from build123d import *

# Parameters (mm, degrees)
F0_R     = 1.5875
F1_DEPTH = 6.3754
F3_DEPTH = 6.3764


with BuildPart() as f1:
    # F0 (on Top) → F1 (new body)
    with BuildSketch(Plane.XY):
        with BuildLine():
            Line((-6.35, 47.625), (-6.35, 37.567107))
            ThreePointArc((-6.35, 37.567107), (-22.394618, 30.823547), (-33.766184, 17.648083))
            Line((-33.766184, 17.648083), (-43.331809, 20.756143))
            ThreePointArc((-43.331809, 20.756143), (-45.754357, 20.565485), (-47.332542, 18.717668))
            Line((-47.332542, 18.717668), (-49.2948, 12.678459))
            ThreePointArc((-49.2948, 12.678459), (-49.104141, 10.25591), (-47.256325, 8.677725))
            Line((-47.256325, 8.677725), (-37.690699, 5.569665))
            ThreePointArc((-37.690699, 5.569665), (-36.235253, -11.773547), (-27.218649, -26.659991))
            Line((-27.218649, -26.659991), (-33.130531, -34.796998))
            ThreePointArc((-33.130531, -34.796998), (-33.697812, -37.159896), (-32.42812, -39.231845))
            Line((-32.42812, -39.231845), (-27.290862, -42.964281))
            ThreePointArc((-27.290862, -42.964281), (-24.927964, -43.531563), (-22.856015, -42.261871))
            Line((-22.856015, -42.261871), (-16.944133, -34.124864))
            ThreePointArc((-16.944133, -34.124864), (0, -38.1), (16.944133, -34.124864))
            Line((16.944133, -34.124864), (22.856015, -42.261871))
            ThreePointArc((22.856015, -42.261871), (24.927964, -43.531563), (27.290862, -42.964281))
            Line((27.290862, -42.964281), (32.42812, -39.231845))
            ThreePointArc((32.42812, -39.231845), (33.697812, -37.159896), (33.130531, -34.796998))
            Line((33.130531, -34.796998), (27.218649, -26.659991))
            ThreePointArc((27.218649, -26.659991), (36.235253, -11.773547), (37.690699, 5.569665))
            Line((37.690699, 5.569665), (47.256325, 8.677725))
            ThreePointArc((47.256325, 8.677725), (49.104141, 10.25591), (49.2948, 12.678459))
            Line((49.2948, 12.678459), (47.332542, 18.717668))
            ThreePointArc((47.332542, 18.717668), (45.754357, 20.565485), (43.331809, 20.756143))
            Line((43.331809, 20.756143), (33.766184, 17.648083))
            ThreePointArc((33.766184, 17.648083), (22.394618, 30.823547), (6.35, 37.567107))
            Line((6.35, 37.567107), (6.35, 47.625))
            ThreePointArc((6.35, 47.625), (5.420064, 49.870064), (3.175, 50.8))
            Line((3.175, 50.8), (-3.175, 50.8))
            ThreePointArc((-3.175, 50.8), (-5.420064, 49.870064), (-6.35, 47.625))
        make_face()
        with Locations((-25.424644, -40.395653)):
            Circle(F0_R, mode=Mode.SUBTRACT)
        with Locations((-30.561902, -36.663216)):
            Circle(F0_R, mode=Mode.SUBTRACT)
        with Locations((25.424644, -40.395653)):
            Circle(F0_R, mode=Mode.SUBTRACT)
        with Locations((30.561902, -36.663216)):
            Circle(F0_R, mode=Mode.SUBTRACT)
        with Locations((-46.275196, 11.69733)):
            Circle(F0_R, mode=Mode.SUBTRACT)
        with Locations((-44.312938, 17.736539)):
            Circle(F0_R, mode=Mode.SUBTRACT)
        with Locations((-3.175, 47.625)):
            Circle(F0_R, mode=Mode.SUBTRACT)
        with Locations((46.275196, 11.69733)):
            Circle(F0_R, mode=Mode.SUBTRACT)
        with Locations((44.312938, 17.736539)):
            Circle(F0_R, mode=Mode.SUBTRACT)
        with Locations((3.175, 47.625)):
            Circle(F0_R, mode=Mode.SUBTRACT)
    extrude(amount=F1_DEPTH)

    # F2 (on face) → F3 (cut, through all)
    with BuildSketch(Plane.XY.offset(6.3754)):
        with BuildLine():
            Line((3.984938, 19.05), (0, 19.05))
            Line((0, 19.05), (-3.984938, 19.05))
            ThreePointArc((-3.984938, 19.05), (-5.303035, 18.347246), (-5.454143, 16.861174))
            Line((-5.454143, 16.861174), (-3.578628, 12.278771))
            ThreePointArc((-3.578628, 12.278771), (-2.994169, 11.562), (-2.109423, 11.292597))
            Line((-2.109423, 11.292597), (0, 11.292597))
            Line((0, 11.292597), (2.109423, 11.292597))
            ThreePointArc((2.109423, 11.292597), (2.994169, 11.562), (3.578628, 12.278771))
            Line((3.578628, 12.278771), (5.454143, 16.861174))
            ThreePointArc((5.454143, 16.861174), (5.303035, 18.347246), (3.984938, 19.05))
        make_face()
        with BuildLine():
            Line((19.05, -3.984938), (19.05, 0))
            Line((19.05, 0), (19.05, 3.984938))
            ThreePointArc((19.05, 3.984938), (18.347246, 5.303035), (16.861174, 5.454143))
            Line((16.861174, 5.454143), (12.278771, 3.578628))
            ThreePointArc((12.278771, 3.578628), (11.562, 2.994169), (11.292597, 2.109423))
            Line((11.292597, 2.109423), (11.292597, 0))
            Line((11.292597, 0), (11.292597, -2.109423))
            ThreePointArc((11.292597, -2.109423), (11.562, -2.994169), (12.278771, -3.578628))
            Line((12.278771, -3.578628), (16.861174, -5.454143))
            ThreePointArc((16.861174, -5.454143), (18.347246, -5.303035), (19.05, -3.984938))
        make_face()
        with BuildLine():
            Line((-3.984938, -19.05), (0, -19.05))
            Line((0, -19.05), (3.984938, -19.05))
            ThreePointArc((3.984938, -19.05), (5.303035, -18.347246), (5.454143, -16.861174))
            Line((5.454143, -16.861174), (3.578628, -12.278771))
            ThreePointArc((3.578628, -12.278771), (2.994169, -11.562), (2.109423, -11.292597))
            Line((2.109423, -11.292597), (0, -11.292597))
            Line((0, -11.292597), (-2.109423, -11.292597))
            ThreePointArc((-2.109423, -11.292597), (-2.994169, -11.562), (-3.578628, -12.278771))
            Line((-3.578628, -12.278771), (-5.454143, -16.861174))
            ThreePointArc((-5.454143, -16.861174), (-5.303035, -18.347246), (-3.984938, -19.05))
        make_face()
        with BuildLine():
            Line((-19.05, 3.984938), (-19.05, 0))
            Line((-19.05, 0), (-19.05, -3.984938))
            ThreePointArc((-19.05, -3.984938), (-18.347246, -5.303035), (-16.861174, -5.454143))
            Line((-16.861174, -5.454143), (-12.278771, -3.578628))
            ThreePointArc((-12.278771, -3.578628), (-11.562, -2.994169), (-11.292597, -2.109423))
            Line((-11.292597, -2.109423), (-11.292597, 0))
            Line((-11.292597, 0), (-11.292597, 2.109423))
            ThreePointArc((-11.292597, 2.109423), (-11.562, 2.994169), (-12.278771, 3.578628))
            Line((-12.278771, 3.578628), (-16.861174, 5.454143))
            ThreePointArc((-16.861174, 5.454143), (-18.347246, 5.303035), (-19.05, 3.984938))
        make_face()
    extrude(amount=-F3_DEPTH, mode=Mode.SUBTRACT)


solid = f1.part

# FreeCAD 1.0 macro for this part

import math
import FreeCAD as App
import Part
import Sketcher
from FreeCAD import Vector
Q = App.Units.Quantity

doc = App.newDocument("Part")
params = doc.addObject("Spreadsheet::Sheet", "Params")
for row, (alias, value) in enumerate([
    ("sketch1_radius", "1.5 in"),
    ("sketch1_radius2", "1.4999999 in"),
    ("sketch1_radius3", "1.5 in"),
    ("sketch1_diameter", "0.125 in"),
    ("sketch1_diameter2", "0.125 in"),
    ("pad1_length", "0.251 in"),
    ("sketch2_radius", "0.0625 in"),
], start=1):
    params.set(f"A{row}", alias)
    params.set(f"B{row}", "=" + value)
    params.setAlias(f"B{row}", alias)

body = doc.addObject("PartDesign::Body", "Body")

# Sketch on XY plane
sketch1 = doc.addObject("Sketcher::SketchObject", "Sketch")
body.addObject(sketch1)
sketch1.AttachmentSupport = (doc.XY_Plane, [""])
sketch1.MapMode = "FlatFace"
sketch1.addGeometry([
    Part.LineSegment(Vector(-6.35, 47.625, 0), Vector(-6.35, 37.567107, 0)),  # 0
    Part.ArcOfCircle(Part.Circle(Vector(0.000004, -0.000006, 0), Vector(0, 0, 1), 38.100007), math.radians(99.594073), math.radians(152.405928)),  # 1
    Part.LineSegment(Vector(-33.766184, 17.648083, 0), Vector(-43.331809, 20.756143, 0)),  # 2
    Part.ArcOfCircle(Part.Circle(Vector(-44.312938, 17.73654, 0), Vector(0, 0, 1), 3.174999), math.radians(71.999985), math.radians(162.000009)),  # 3
    Part.LineSegment(Vector(-47.332542, 18.717668, 0), Vector(-49.2948, 12.678459, 0)),  # 4
    Part.ArcOfCircle(Part.Circle(Vector(-46.275194, 11.69733, 0), Vector(0, 0, 1), 3.175002), math.radians(162.000016), math.radians(251.999966)),  # 5
    Part.LineSegment(Vector(-47.256325, 8.677725, 0), Vector(-37.690699, 5.569665, 0)),  # 6
    Part.ArcOfCircle(Part.Circle(Vector(0, 0, 0), Vector(0, 0, 1), 38.099999), math.radians(171.594068), math.radians(224.405932)),  # 7
    Part.LineSegment(Vector(-27.218649, -26.659991, 0), Vector(-33.130531, -34.796998, 0)),  # 8
    Part.ArcOfCircle(Part.Circle(Vector(-30.561901, -36.663216, 0), Vector(0, 0, 1), 3.175001), math.radians(144.000017), math.radians(233.999989)),  # 9
    Part.LineSegment(Vector(-32.42812, -39.231845, 0), Vector(-27.290862, -42.964281, 0)),  # 10
    Part.ArcOfCircle(Part.Circle(Vector(-25.424643, -40.395653, 0), Vector(0, 0, 1), 3.174999), math.radians(-126.000019), math.radians(-36)),  # 11
    Part.LineSegment(Vector(-22.856015, -42.261871, 0), Vector(-16.944133, -34.124864, 0)),  # 12
    Part.ArcOfCircle(Part.Circle(Vector(0, -0.000002, 0), Vector(0, 0, 1), 38.099998), math.radians(-116.405933), math.radians(-63.594067)),  # 13
    Part.LineSegment(Vector(16.944133, -34.124864, 0), Vector(22.856015, -42.261871, 0)),  # 14
    Part.ArcOfCircle(Part.Circle(Vector(25.424643, -40.395653, 0), Vector(0, 0, 1), 3.174999), math.radians(-144), math.radians(-53.999981)),  # 15
    Part.LineSegment(Vector(27.290862, -42.964281, 0), Vector(32.42812, -39.231845, 0)),  # 16
    Part.ArcOfCircle(Part.Circle(Vector(30.561901, -36.663216, 0), Vector(0, 0, 1), 3.175001), math.radians(-53.999989), math.radians(35.999983)),  # 17
    Part.LineSegment(Vector(33.130531, -34.796998, 0), Vector(27.218649, -26.659991, 0)),  # 18
    Part.ArcOfCircle(Part.Circle(Vector(0, 0, 0), Vector(0, 0, 1), 38.099999), math.radians(-44.405932), math.radians(8.405932)),  # 19
    Part.LineSegment(Vector(37.690699, 5.569665, 0), Vector(47.256325, 8.677725, 0)),  # 20
    Part.ArcOfCircle(Part.Circle(Vector(46.275194, 11.69733, 0), Vector(0, 0, 1), 3.175002), math.radians(-71.999966), math.radians(17.999984)),  # 21
    Part.LineSegment(Vector(49.2948, 12.678459, 0), Vector(47.332542, 18.717668, 0)),  # 22
    Part.ArcOfCircle(Part.Circle(Vector(44.312938, 17.73654, 0), Vector(0, 0, 1), 3.174999), math.radians(17.999991), math.radians(108.000015)),  # 23
    Part.LineSegment(Vector(43.331809, 20.756143, 0), Vector(33.766184, 17.648083, 0)),  # 24
    Part.ArcOfCircle(Part.Circle(Vector(-0.000004, -0.000006, 0), Vector(0, 0, 1), 38.100007), math.radians(27.594072), math.radians(80.405927)),  # 25
    Part.LineSegment(Vector(6.35, 37.567107, 0), Vector(6.35, 47.625, 0)),  # 26
    Part.ArcOfCircle(Part.Circle(Vector(3.175, 47.625, 0), Vector(0, 0, 1), 3.175), math.radians(0.000002), math.radians(89.999998)),  # 27
    Part.LineSegment(Vector(3.175, 50.8, 0), Vector(-3.175, 50.8, 0)),  # 28
    Part.ArcOfCircle(Part.Circle(Vector(-3.175, 47.625, 0), Vector(0, 0, 1), 3.175), math.radians(90.000002), math.radians(179.999998)),  # 29
    Part.Circle(Vector(-30.561902, -36.663216, 0), Vector(0, 0, 1), 1.5875),  # 30
    Part.Circle(Vector(-25.424644, -40.395653, 0), Vector(0, 0, 1), 1.5875),  # 31
    Part.Circle(Vector(25.424644, -40.395653, 0), Vector(0, 0, 1), 1.5875),  # 32
    Part.Circle(Vector(30.561902, -36.663216, 0), Vector(0, 0, 1), 1.5875),  # 33
    Part.Circle(Vector(-46.275196, 11.69733, 0), Vector(0, 0, 1), 1.5875),  # 34
    Part.Circle(Vector(-44.312938, 17.736539, 0), Vector(0, 0, 1), 1.5875),  # 35
    Part.Circle(Vector(-3.175, 47.625, 0), Vector(0, 0, 1), 1.5875),  # 36
    Part.Circle(Vector(46.275196, 11.69733, 0), Vector(0, 0, 1), 1.5875),  # 37
    Part.Circle(Vector(44.312938, 17.736539, 0), Vector(0, 0, 1), 1.5875),  # 38
    Part.Circle(Vector(3.175, 47.625, 0), Vector(0, 0, 1), 1.5875),  # 39
], False)
sketch1.addConstraint([
    Sketcher.Constraint("Coincident", 0, 2, 1, 1),
    Sketcher.Constraint("Coincident", 1, 2, 2, 1),
    Sketcher.Constraint("Coincident", 2, 2, 3, 1),
    Sketcher.Constraint("Coincident", 3, 2, 4, 1),
    Sketcher.Constraint("Coincident", 4, 2, 5, 1),
    Sketcher.Constraint("Coincident", 5, 2, 6, 1),
    Sketcher.Constraint("Coincident", 6, 2, 7, 1),
    Sketcher.Constraint("Coincident", 7, 2, 8, 1),
    Sketcher.Constraint("Coincident", 8, 2, 9, 1),
    Sketcher.Constraint("Coincident", 9, 2, 10, 1),
    Sketcher.Constraint("Coincident", 10, 2, 11, 1),
    Sketcher.Constraint("Coincident", 11, 2, 12, 1),
    Sketcher.Constraint("Coincident", 12, 2, 13, 1),
    Sketcher.Constraint("Coincident", 13, 2, 14, 1),
    Sketcher.Constraint("Coincident", 14, 2, 15, 1),
    Sketcher.Constraint("Coincident", 15, 2, 16, 1),
    Sketcher.Constraint("Coincident", 16, 2, 17, 1),
    Sketcher.Constraint("Coincident", 17, 2, 18, 1),
    Sketcher.Constraint("Coincident", 18, 2, 19, 1),
    Sketcher.Constraint("Coincident", 19, 2, 20, 1),
    Sketcher.Constraint("Coincident", 20, 2, 21, 1),
    Sketcher.Constraint("Coincident", 21, 2, 22, 1),
    Sketcher.Constraint("Coincident", 22, 2, 23, 1),
    Sketcher.Constraint("Coincident", 23, 2, 24, 1),
    Sketcher.Constraint("Coincident", 24, 2, 25, 1),
    Sketcher.Constraint("Coincident", 25, 2, 26, 1),
    Sketcher.Constraint("Coincident", 26, 2, 27, 1),
    Sketcher.Constraint("Coincident", 27, 2, 28, 1),
    Sketcher.Constraint("Coincident", 28, 2, 29, 1),
    Sketcher.Constraint("Coincident", 29, 2, 0, 1),
    Sketcher.Constraint("Vertical", 0),
    Sketcher.Constraint("Vertical", 26),
    Sketcher.Constraint("Horizontal", 28),
    Sketcher.Constraint("Coincident", 1, 3, -1, 1),
    Sketcher.Constraint("Coincident", 7, 3, -1, 1),
    Sketcher.Constraint("Coincident", 13, 3, -1, 1),
    Sketcher.Constraint("Coincident", 19, 3, -1, 1),
    Sketcher.Constraint("Coincident", 25, 3, -1, 1),
    Sketcher.Constraint("Coincident", 30, 3, 9, 3),
    Sketcher.Constraint("Coincident", 31, 3, 11, 3),
    Sketcher.Constraint("Coincident", 32, 3, 15, 3),
    Sketcher.Constraint("Coincident", 33, 3, 17, 3),
    Sketcher.Constraint("Coincident", 34, 3, 5, 3),
    Sketcher.Constraint("Coincident", 35, 3, 3, 3),
    Sketcher.Constraint("Coincident", 36, 3, 29, 3),
    Sketcher.Constraint("Coincident", 37, 3, 21, 3),
    Sketcher.Constraint("Coincident", 38, 3, 23, 3),
    Sketcher.Constraint("Coincident", 39, 3, 27, 3),
    Sketcher.Constraint("Radius", 7, Q("1.5 in")),
    Sketcher.Constraint("Radius", 13, Q("1.4999999 in")),
    Sketcher.Constraint("Radius", 19, Q("1.5 in")),
    Sketcher.Constraint("Diameter", 30, Q("0.125 in")),
    Sketcher.Constraint("Diameter", 31, Q("0.125 in")),
    Sketcher.Constraint("Diameter", 32, Q("0.125 in")),
    Sketcher.Constraint("Diameter", 33, Q("0.125 in")),
    Sketcher.Constraint("Diameter", 34, Q("0.125 in")),
    Sketcher.Constraint("Diameter", 35, Q("0.125 in")),
    Sketcher.Constraint("Diameter", 36, Q("0.125 in")),
    Sketcher.Constraint("Diameter", 37, Q("0.125 in")),
    Sketcher.Constraint("Diameter", 38, Q("0.125 in")),
    Sketcher.Constraint("Diameter", 39, Q("0.125 in")),
    Sketcher.Constraint("DistanceY", -1, 1, 27, 2, Q("2 in")),
    Sketcher.Constraint("Radius", 3, Q("0.125 in")),
    Sketcher.Constraint("Radius", 5, Q("0.1250001 in")),
    Sketcher.Constraint("Radius", 9, Q("0.125 in")),
    Sketcher.Constraint("Radius", 11, Q("0.125 in")),
    Sketcher.Constraint("Radius", 15, Q("0.125 in")),
    Sketcher.Constraint("Radius", 17, Q("0.125 in")),
    Sketcher.Constraint("Radius", 21, Q("0.1250001 in")),
    Sketcher.Constraint("Radius", 23, Q("0.125 in")),
    Sketcher.Constraint("Radius", 27, Q("0.125 in")),
    Sketcher.Constraint("Radius", 29, Q("0.125 in")),
    Sketcher.Constraint("DistanceX", 28, 2, 28, 1, Q("0.25 in")),
    Sketcher.Constraint("DistanceX", 0, 2, 25, 2, Q("0.5 in")),
    Sketcher.Constraint("Distance", 4, Q("0.25 in")),
    Sketcher.Constraint("Distance", 10, Q("0.25 in")),
    Sketcher.Constraint("Distance", 16, Q("0.25 in")),
    Sketcher.Constraint("Distance", 22, Q("0.25 in")),
    Sketcher.Constraint("DistanceX", 0, 2, -1, 1, Q("0.25 in")),
    Sketcher.Constraint("DistanceX", 29, 3, 27, 2, Q("0.25 in")),
    Sketcher.Constraint("DistanceY", -1, 1, 26, 2, Q("1.875 in")),
    Sketcher.Constraint("DistanceY", -1, 1, 29, 2, Q("1.875 in")),
    Sketcher.Constraint("Radius", 1, Q("38.100007 mm")),
    Sketcher.Constraint("Radius", 25, Q("38.100007 mm")),
    Sketcher.Constraint("DistanceX", 9, 3, -1, 1, Q("30.561901 mm")),
    Sketcher.Constraint("DistanceX", -1, 1, 17, 3, Q("30.561901 mm")),
    Sketcher.Constraint("DistanceX", 4, 2, -1, 1, Q("49.2948 mm")),
    Sketcher.Constraint("DistanceX", 6, 2, -1, 1, Q("37.690699 mm")),
    Sketcher.Constraint("DistanceY", 8, 2, -1, 1, Q("34.796998 mm")),
    Sketcher.Constraint("DistanceY", 17, 2, -1, 1, Q("34.796998 mm")),
    Sketcher.Constraint("DistanceX", -1, 1, 19, 2, Q("37.690699 mm")),
    Sketcher.Constraint("DistanceX", -1, 1, 21, 2, Q("49.2948 mm")),
    Sketcher.Constraint("DistanceX", 5, 3, 1, 3, Q("46.275198 mm")),
    Sketcher.Constraint("DistanceX", 3, 3, -1, 1, Q("44.312938 mm")),
    Sketcher.Constraint("DistanceY", -1, 1, 3, 3, Q("17.73654 mm")),
    Sketcher.Constraint("DistanceY", -1, 1, 5, 3, Q("11.69733 mm")),
    Sketcher.Constraint("DistanceY", -1, 1, 21, 3, Q("11.69733 mm")),
    Sketcher.Constraint("DistanceX", -1, 1, 23, 3, Q("44.312938 mm")),
    Sketcher.Constraint("DistanceY", -1, 1, 23, 3, Q("17.73654 mm")),
    Sketcher.Constraint("DistanceX", 2, 2, -1, 1, Q("43.331809 mm")),
    Sketcher.Constraint("DistanceX", 7, 2, -1, 1, Q("27.218649 mm")),
    Sketcher.Constraint("DistanceX", 8, 2, -1, 1, Q("33.130531 mm")),
    Sketcher.Constraint("DistanceX", 9, 2, -1, 1, Q("32.42812 mm")),
    Sketcher.Constraint("DistanceY", 10, 2, -1, 1, Q("42.964281 mm")),
    Sketcher.Constraint("DistanceY", 11, 2, -1, 1, Q("42.261871 mm")),
    Sketcher.Constraint("DistanceY", 14, 2, -1, 1, Q("42.261871 mm")),
    Sketcher.Constraint("DistanceX", -1, 1, 15, 2, Q("27.290862 mm")),
    Sketcher.Constraint("DistanceY", 15, 2, -1, 1, Q("42.964281 mm")),
    Sketcher.Constraint("DistanceX", -1, 1, 16, 2, Q("32.42812 mm")),
    Sketcher.Constraint("DistanceX", -1, 1, 18, 2, Q("27.218649 mm")),
    Sketcher.Constraint("DistanceY", -1, 1, 21, 2, Q("12.678459 mm")),
    Sketcher.Constraint("DistanceX", -1, 1, 23, 2, Q("43.331809 mm")),
    Sketcher.Constraint("DistanceX", 5, 3, 11, 3, Q("20.85055 mm")),
    Sketcher.Constraint("DistanceX", 1, 3, 15, 3, Q("25.424639 mm")),
    Sketcher.Constraint("DistanceX", 5, 3, 1, 2, Q("12.50901 mm")),
    Sketcher.Constraint("DistanceX", 5, 2, 34, 3, Q("0.981129 mm")),
    Sketcher.Constraint("DistanceX", 11, 3, 12, 2, Q("8.48051 mm")),
    Sketcher.Constraint("DistanceX", 13, 2, 15, 3, Q("8.48051 mm")),
    Sketcher.Constraint("DistanceX", 37, 3, 20, 2, Q("0.981129 mm")),
    Sketcher.Constraint("DistanceY", 24, 2, 23, 2, Q("3.10806 mm")),
])
sketch1.setExpression("Constraints[48]", "Params.sketch1_radius")
sketch1.setExpression("Constraints[49]", "Params.sketch1_radius2")
sketch1.setExpression("Constraints[50]", "Params.sketch1_radius3")
sketch1.setExpression("Constraints[51]", "Params.sketch1_diameter")
sketch1.setExpression("Constraints[52]", "Params.sketch1_diameter2")
pad1 = doc.addObject("PartDesign::Pad", "Pad")
body.addObject(pad1)
pad1.Profile = sketch1
pad1.setExpression("Length", "Params.pad1_length")

# Sketch on XY plane
sketch2 = doc.addObject("Sketcher::SketchObject", "Sketch001")
body.addObject(sketch2)
sketch2.AttachmentSupport = (doc.XY_Plane, [""])
sketch2.MapMode = "FlatFace"
sketch2.AttachmentOffset = App.Placement(Vector(0, 0, 0.251 * 25.4), App.Rotation())
sketch2.addGeometry([
    Part.LineSegment(Vector(3.984938, 19.05, 0), Vector(-3.984938, 19.05, 0)),  # 0
    Part.ArcOfCircle(Part.Circle(Vector(-3.984937, 17.4625, 0), Vector(0, 0, 1), 1.5875), math.radians(90.000023), math.radians(202.258607)),  # 1
    Part.LineSegment(Vector(-5.454143, 16.861174, 0), Vector(-3.578628, 12.278771, 0)),  # 2
    Part.ArcOfCircle(Part.Circle(Vector(-2.109422, 12.880099, 0), Vector(0, 0, 1), 1.587502), math.radians(-157.741329), math.radians(-90.00004)),  # 3
    Part.LineSegment(Vector(-2.109423, 11.292597, 0), Vector(2.109423, 11.292597, 0)),  # 4
    Part.ArcOfCircle(Part.Circle(Vector(2.109422, 12.880099, 0), Vector(0, 0, 1), 1.587502), math.radians(-89.99996), math.radians(-22.258671)),  # 5
    Part.LineSegment(Vector(3.578628, 12.278771, 0), Vector(5.454143, 16.861174, 0)),  # 6
    Part.ArcOfCircle(Part.Circle(Vector(3.984937, 17.4625, 0), Vector(0, 0, 1), 1.5875), math.radians(-22.258607), math.radians(89.999977)),  # 7
    Part.LineSegment(Vector(19.05, -3.984938, 0), Vector(19.05, 3.984938, 0)),  # 8
    Part.ArcOfCircle(Part.Circle(Vector(17.4625, 3.984937, 0), Vector(0, 0, 1), 1.5875), math.radians(0.000023), math.radians(112.258607)),  # 9
    Part.LineSegment(Vector(16.861174, 5.454143, 0), Vector(12.278771, 3.578628, 0)),  # 10
    Part.ArcOfCircle(Part.Circle(Vector(12.880099, 2.109422, 0), Vector(0, 0, 1), 1.587502), math.radians(112.258671), math.radians(179.99996)),  # 11
    Part.LineSegment(Vector(11.292597, 2.109423, 0), Vector(11.292597, -2.109423, 0)),  # 12
    Part.ArcOfCircle(Part.Circle(Vector(12.880099, -2.109422, 0), Vector(0, 0, 1), 1.587502), math.radians(-179.99996), math.radians(-112.258671)),  # 13
    Part.LineSegment(Vector(12.278771, -3.578628, 0), Vector(16.861174, -5.454143, 0)),  # 14
    Part.ArcOfCircle(Part.Circle(Vector(17.4625, -3.984937, 0), Vector(0, 0, 1), 1.5875), math.radians(-112.258607), math.radians(-0.000023)),  # 15
    Part.LineSegment(Vector(-3.984938, -19.05, 0), Vector(3.984938, -19.05, 0)),  # 16
    Part.ArcOfCircle(Part.Circle(Vector(3.984937, -17.4625, 0), Vector(0, 0, 1), 1.5875), math.radians(-89.999977), math.radians(22.258607)),  # 17
    Part.LineSegment(Vector(5.454143, -16.861174, 0), Vector(3.578628, -12.278771, 0)),  # 18
    Part.ArcOfCircle(Part.Circle(Vector(2.109422, -12.880099, 0), Vector(0, 0, 1), 1.587502), math.radians(22.258671), math.radians(89.99996)),  # 19
    Part.LineSegment(Vector(2.109423, -11.292597, 0), Vector(-2.109423, -11.292597, 0)),  # 20
    Part.ArcOfCircle(Part.Circle(Vector(-2.109422, -12.880099, 0), Vector(0, 0, 1), 1.587502), math.radians(90.00004), math.radians(157.741329)),  # 21
    Part.LineSegment(Vector(-3.578628, -12.278771, 0), Vector(-5.454143, -16.861174, 0)),  # 22
    Part.ArcOfCircle(Part.Circle(Vector(-3.984937, -17.4625, 0), Vector(0, 0, 1), 1.5875), math.radians(157.741393), math.radians(269.999977)),  # 23
    Part.LineSegment(Vector(-19.05, 3.984938, 0), Vector(-19.05, -3.984938, 0)),  # 24
    Part.ArcOfCircle(Part.Circle(Vector(-17.4625, -3.984937, 0), Vector(0, 0, 1), 1.5875), math.radians(-179.999977), math.radians(-67.741393)),  # 25
    Part.LineSegment(Vector(-16.861174, -5.454143, 0), Vector(-12.278771, -3.578628, 0)),  # 26
    Part.ArcOfCircle(Part.Circle(Vector(-12.880099, -2.109422, 0), Vector(0, 0, 1), 1.587502), math.radians(-67.741329), math.radians(-0.00004)),  # 27
    Part.LineSegment(Vector(-11.292597, -2.109423, 0), Vector(-11.292597, 2.109423, 0)),  # 28
    Part.ArcOfCircle(Part.Circle(Vector(-12.880099, 2.109422, 0), Vector(0, 0, 1), 1.587502), math.radians(0.00004), math.radians(67.741329)),  # 29
    Part.LineSegment(Vector(-12.278771, 3.578628, 0), Vector(-16.861174, 5.454143, 0)),  # 30
    Part.ArcOfCircle(Part.Circle(Vector(-17.4625, 3.984937, 0), Vector(0, 0, 1), 1.5875), math.radians(67.741393), math.radians(179.999977)),  # 31
], False)
sketch2.addConstraint([
    Sketcher.Constraint("Tangent", 0, 2, 1, 1),
    Sketcher.Constraint("Tangent", 1, 2, 2, 1),
    Sketcher.Constraint("Tangent", 2, 2, 3, 1),
    Sketcher.Constraint("Tangent", 3, 2, 4, 1),
    Sketcher.Constraint("Tangent", 4, 2, 5, 1),
    Sketcher.Constraint("Tangent", 5, 2, 6, 1),
    Sketcher.Constraint("Tangent", 6, 2, 7, 1),
    Sketcher.Constraint("Tangent", 7, 2, 0, 1),
    Sketcher.Constraint("Tangent", 8, 2, 9, 1),
    Sketcher.Constraint("Tangent", 9, 2, 10, 1),
    Sketcher.Constraint("Tangent", 10, 2, 11, 1),
    Sketcher.Constraint("Tangent", 11, 2, 12, 1),
    Sketcher.Constraint("Tangent", 12, 2, 13, 1),
    Sketcher.Constraint("Tangent", 13, 2, 14, 1),
    Sketcher.Constraint("Tangent", 14, 2, 15, 1),
    Sketcher.Constraint("Tangent", 15, 2, 8, 1),
    Sketcher.Constraint("Tangent", 16, 2, 17, 1),
    Sketcher.Constraint("Tangent", 17, 2, 18, 1),
    Sketcher.Constraint("Tangent", 18, 2, 19, 1),
    Sketcher.Constraint("Tangent", 19, 2, 20, 1),
    Sketcher.Constraint("Tangent", 20, 2, 21, 1),
    Sketcher.Constraint("Tangent", 21, 2, 22, 1),
    Sketcher.Constraint("Tangent", 22, 2, 23, 1),
    Sketcher.Constraint("Tangent", 23, 2, 16, 1),
    Sketcher.Constraint("Tangent", 24, 2, 25, 1),
    Sketcher.Constraint("Tangent", 25, 2, 26, 1),
    Sketcher.Constraint("Tangent", 26, 2, 27, 1),
    Sketcher.Constraint("Tangent", 27, 2, 28, 1),
    Sketcher.Constraint("Tangent", 28, 2, 29, 1),
    Sketcher.Constraint("Tangent", 29, 2, 30, 1),
    Sketcher.Constraint("Tangent", 30, 2, 31, 1),
    Sketcher.Constraint("Tangent", 31, 2, 24, 1),
    Sketcher.Constraint("Horizontal", 0),
    Sketcher.Constraint("Horizontal", 4),
    Sketcher.Constraint("Vertical", 8),
    Sketcher.Constraint("Vertical", 12),
    Sketcher.Constraint("Horizontal", 16),
    Sketcher.Constraint("Horizontal", 20),
    Sketcher.Constraint("Vertical", 24),
    Sketcher.Constraint("Vertical", 28),
    Sketcher.Constraint("Equal", 1, 3),
    Sketcher.Constraint("Equal", 3, 5),
    Sketcher.Constraint("Equal", 5, 7),
    Sketcher.Constraint("Equal", 7, 9),
    Sketcher.Constraint("Equal", 9, 11),
    Sketcher.Constraint("Equal", 11, 13),
    Sketcher.Constraint("Equal", 13, 15),
    Sketcher.Constraint("Equal", 15, 17),
    Sketcher.Constraint("Equal", 17, 19),
    Sketcher.Constraint("Equal", 19, 21),
    Sketcher.Constraint("Equal", 21, 23),
    Sketcher.Constraint("Equal", 23, 25),
    Sketcher.Constraint("Equal", 25, 27),
    Sketcher.Constraint("Equal", 27, 29),
    Sketcher.Constraint("Equal", 29, 31),
    Sketcher.Constraint("Symmetric", 1, 3, 17, 3, -1, 1),
    Sketcher.Constraint("Symmetric", 3, 3, 19, 3, -1, 1),
    Sketcher.Constraint("Symmetric", 9, 3, 25, 3, -1, 1),
    Sketcher.Constraint("Symmetric", 11, 3, 27, 3, -1, 1),
    Sketcher.Constraint("Symmetric", 5, 2, 21, 2, -1, 1),
    Sketcher.Constraint("Symmetric", 13, 2, 29, 2, -1, 1),
    Sketcher.Constraint("Symmetric", 2, 2, 5, 2, -2),
    Sketcher.Constraint("Symmetric", 14, 2, 25, 2, -2),
    Sketcher.Constraint("Perpendicular", 2, 10),
    Sketcher.Constraint("Equal", 16, 8),
    Sketcher.Constraint("Equal", 20, 12),
    Sketcher.Constraint("Radius", 1, Q("0.0625 in")),
    Sketcher.Constraint("DistanceY", -1, 1, 0, 2, Q("0.75 in")),
    Sketcher.Constraint("DistanceX", -1, 1, 8, 2, Q("0.75 in")),
    Sketcher.Constraint("DistanceY", -1, 1, 3, 3, Q("12.880099 mm")),
    Sketcher.Constraint("Distance", 2, Q("4.951361 mm")),
    Sketcher.Constraint("DistanceX", 0, 2, 0, 1, Q("7.969876 mm")),
])
sketch2.setExpression("Constraints[66]", "Params.sketch2_radius")
pocket1 = doc.addObject("PartDesign::Pocket", "Pocket")
body.addObject(pocket1)
pocket1.Profile = sketch2
pocket1.Type = "ThroughAll"

doc.recompute()
